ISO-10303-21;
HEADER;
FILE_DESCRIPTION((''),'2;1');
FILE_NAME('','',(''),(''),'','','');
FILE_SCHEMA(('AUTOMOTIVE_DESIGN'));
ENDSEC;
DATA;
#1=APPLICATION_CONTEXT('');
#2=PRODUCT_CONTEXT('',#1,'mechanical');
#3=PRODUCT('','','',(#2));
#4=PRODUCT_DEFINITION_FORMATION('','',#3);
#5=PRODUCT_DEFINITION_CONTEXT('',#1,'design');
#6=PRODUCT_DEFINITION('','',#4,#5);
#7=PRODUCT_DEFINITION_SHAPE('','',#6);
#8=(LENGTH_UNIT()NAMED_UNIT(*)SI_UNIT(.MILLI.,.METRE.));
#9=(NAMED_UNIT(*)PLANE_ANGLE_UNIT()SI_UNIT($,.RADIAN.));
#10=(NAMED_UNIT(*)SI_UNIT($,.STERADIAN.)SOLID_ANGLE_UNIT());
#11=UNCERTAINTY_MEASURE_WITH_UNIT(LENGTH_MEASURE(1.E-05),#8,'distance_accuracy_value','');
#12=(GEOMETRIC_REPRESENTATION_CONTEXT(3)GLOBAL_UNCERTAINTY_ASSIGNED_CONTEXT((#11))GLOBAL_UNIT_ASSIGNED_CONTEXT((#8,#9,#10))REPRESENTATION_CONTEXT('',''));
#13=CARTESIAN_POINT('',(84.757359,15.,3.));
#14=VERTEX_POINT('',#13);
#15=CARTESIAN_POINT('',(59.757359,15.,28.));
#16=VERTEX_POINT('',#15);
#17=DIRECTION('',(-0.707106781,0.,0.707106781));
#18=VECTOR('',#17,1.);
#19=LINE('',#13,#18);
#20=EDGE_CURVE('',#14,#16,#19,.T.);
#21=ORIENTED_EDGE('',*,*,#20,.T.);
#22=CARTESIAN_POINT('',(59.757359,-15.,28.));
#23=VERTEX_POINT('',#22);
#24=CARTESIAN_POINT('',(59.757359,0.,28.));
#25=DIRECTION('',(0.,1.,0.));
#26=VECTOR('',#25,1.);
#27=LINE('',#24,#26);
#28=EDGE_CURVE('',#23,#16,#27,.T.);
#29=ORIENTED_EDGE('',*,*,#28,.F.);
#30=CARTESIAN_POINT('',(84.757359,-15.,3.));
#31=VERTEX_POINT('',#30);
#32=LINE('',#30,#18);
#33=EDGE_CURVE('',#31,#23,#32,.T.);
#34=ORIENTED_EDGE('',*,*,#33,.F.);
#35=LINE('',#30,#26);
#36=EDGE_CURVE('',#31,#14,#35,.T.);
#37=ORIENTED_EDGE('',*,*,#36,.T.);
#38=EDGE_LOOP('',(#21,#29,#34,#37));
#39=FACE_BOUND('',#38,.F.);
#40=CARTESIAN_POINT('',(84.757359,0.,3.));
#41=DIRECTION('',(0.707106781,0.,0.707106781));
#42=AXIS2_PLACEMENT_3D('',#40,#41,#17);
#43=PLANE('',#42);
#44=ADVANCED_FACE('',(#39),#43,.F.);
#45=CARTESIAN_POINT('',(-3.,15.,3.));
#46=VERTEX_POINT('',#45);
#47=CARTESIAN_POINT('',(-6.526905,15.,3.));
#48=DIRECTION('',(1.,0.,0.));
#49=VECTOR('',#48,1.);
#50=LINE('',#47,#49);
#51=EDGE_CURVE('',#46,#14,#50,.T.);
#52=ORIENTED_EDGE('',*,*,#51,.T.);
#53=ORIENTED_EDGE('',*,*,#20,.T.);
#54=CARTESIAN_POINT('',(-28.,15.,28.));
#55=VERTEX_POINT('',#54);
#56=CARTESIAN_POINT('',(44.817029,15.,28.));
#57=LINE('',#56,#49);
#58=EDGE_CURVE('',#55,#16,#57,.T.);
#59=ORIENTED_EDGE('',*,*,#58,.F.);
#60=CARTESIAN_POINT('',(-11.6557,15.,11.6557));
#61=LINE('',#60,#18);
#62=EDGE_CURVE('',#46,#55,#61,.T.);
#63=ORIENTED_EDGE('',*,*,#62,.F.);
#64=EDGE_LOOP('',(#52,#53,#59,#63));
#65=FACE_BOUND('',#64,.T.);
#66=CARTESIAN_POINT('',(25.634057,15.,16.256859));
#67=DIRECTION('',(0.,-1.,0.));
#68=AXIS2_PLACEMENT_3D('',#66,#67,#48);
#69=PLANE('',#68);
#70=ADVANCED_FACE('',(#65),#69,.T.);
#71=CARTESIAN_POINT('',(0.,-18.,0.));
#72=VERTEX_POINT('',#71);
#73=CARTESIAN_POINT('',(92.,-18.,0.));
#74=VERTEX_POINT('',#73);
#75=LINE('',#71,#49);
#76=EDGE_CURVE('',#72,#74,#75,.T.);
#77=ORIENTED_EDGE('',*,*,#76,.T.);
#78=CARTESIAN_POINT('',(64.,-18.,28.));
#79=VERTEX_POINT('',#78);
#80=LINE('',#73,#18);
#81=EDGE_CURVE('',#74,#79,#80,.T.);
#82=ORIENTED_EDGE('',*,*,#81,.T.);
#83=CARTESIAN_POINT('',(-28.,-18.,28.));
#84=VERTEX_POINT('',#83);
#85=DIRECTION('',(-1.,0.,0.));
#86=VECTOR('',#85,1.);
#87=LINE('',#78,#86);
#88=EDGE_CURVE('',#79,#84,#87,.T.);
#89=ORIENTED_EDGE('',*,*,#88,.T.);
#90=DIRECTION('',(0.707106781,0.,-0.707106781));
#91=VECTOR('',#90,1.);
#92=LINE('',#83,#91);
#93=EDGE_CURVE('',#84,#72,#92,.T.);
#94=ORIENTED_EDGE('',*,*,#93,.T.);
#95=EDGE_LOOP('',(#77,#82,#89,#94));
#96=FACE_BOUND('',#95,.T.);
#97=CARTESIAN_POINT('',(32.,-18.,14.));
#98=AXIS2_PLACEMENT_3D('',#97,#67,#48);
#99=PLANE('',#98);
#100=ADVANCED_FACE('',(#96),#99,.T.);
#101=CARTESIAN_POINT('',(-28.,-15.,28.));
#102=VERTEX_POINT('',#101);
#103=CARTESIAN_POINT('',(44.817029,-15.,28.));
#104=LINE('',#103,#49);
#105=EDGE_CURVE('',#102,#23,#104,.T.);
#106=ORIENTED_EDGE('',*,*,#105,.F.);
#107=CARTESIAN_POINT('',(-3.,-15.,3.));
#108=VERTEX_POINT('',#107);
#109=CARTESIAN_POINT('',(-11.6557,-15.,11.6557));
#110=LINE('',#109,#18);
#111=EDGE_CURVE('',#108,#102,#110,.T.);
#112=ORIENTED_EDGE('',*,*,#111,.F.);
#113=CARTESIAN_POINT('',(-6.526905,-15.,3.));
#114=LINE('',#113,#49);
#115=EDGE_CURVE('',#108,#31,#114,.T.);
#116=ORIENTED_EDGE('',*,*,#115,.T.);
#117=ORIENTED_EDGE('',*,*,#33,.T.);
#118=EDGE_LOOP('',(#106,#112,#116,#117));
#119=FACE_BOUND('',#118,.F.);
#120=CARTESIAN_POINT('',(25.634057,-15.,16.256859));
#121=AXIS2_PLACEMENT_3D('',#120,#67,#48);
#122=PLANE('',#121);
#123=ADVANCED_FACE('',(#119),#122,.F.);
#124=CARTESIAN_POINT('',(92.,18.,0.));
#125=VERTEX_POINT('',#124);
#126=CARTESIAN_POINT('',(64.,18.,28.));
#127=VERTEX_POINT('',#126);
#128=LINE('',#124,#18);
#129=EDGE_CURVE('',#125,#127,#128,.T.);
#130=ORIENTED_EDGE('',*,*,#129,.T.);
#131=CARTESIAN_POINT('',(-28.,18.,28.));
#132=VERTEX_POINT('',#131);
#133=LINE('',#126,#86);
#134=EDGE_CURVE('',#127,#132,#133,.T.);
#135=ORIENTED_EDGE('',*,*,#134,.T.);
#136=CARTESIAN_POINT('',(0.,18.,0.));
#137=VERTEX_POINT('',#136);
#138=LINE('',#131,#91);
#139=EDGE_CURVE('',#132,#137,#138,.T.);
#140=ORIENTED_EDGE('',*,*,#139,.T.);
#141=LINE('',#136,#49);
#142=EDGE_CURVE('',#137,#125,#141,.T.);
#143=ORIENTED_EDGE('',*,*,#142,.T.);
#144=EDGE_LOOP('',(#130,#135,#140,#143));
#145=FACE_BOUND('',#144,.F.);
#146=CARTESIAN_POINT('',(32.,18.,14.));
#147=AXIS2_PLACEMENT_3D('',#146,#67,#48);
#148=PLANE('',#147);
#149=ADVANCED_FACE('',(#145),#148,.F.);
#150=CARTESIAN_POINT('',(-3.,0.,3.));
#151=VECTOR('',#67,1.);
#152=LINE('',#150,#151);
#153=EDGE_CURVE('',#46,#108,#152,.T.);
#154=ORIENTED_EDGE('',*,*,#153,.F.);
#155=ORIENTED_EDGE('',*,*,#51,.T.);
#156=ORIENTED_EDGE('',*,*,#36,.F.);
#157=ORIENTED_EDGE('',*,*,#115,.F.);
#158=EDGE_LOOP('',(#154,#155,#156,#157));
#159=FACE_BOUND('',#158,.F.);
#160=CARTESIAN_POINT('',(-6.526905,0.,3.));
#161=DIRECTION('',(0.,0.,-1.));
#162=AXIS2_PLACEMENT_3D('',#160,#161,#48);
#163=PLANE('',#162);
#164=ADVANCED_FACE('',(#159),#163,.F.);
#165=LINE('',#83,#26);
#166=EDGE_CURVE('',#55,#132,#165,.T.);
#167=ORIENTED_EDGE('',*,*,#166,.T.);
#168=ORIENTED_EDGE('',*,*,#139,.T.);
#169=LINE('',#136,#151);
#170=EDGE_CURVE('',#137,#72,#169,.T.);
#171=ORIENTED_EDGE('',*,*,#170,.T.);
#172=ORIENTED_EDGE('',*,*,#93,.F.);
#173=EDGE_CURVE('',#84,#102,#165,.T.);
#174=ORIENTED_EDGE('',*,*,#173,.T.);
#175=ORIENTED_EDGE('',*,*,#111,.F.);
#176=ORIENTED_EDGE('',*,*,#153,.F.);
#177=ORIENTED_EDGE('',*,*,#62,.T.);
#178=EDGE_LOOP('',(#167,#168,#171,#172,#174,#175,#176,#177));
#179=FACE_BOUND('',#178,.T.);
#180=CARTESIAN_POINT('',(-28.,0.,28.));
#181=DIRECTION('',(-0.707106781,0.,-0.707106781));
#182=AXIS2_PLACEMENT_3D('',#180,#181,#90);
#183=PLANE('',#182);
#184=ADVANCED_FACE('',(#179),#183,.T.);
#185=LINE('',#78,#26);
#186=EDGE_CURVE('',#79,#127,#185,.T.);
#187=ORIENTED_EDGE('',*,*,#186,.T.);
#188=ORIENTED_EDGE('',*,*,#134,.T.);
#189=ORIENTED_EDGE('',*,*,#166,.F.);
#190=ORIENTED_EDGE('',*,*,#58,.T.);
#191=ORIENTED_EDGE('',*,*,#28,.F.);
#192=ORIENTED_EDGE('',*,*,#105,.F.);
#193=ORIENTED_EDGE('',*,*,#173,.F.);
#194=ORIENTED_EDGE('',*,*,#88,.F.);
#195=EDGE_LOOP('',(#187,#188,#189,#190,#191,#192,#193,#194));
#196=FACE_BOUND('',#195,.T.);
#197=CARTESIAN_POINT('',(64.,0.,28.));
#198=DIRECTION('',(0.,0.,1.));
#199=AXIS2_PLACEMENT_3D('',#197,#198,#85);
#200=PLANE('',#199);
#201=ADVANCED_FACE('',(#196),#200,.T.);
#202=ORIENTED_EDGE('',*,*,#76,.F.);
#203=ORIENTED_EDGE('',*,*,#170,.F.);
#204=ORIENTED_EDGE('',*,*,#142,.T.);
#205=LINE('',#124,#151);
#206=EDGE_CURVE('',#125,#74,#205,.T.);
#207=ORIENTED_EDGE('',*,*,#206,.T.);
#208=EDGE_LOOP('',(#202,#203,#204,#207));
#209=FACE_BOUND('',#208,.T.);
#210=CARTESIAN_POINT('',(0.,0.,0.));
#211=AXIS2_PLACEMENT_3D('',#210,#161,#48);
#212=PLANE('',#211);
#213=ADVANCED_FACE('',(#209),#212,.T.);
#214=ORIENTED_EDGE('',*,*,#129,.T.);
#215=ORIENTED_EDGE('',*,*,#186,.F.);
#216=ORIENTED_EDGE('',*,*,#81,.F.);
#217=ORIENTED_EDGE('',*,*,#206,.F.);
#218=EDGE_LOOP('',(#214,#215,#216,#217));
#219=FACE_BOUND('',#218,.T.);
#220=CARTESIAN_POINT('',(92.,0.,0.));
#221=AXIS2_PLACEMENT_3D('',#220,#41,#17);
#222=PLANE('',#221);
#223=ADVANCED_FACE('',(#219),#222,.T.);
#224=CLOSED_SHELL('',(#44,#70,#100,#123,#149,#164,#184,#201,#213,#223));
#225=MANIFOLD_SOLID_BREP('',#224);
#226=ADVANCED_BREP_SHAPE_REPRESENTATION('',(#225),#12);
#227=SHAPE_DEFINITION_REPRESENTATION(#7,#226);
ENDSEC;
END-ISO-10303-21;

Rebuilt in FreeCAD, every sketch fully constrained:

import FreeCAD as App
import Part
import Sketcher
from FreeCAD import Vector
Q = App.Units.Quantity


def add_polygon(sketch, points):
    """Adds a closed chain of lines whose ends are joined by coincident constraints."""
    first, n = sketch.GeometryCount, len(points)
    for a, b in zip(points, points[1:] + points[:1]):
        sketch.addGeometry(Part.LineSegment(App.Vector(*a, 0), App.Vector(*b, 0)), False)
    for i in range(n):
        sketch.addConstraint(Sketcher.Constraint("Coincident", first + i, 2, first + (i + 1) % n, 1))

doc = App.newDocument("Part")
body = doc.addObject("PartDesign::Body", "Body")

# Sketch on XZ plane
sketch1 = doc.addObject("Sketcher::SketchObject", "Sketch")
body.addObject(sketch1)
sketch1.AttachmentSupport = (doc.XZ_Plane, [""])
sketch1.MapMode = "FlatFace"
add_polygon(sketch1, [(-28, 28), (0, 0), (92, 0), (64, 28)])  # lines 0-3
sketch1.addConstraint(Sketcher.Constraint("Horizontal", 1))
sketch1.addConstraint(Sketcher.Constraint("Horizontal", 3))
sketch1.addConstraint(Sketcher.Constraint("Coincident", 0, 2, -1, 1))
sketch1.addConstraint(Sketcher.Constraint("Parallel", 0, 2))
sketch1.addConstraint(Sketcher.Constraint("DistanceX", 1, 1, 1, 2, Q("92 mm")))
sketch1.addConstraint(Sketcher.Constraint("Angle", 0, Q("-45 deg")))
sketch1.addConstraint(Sketcher.Constraint("DistanceX", -1, 1, 2, 2, Q("64 mm")))
pad1 = doc.addObject("PartDesign::Pad", "Pad")
body.addObject(pad1)
pad1.Profile = sketch1
pad1.Length = 36
pad1.Midplane = True

# Sketch on XZ plane
sketch2 = doc.addObject("Sketcher::SketchObject", "Sketch001")
body.addObject(sketch2)
sketch2.AttachmentSupport = (doc.XZ_Plane, [""])
sketch2.MapMode = "FlatFace"
add_polygon(sketch2, [(85, 3), (58, 29), (-34, 29), (-7, 3)])  # lines 0-3
sketch2.addConstraint(Sketcher.Constraint("Horizontal", 3))
sketch2.addConstraint(Sketcher.Constraint("Angle", 0, Q("135 deg")))
sketch2.addConstraint(Sketcher.Constraint("DistanceY", -1, 1, 2, 2, Q("3 mm")))
sketch2.addConstraint(Sketcher.Constraint("DistanceX", 3, 1, 3, 2, Q("91.284264 mm")))
sketch2.addConstraint(Sketcher.Constraint("DistanceY", -1, 1, 0, 2, Q("29.412471 mm")))
sketch2.addConstraint(Sketcher.Constraint("DistanceY", -1, 1, 1, 2, Q("29.487692 mm")))
sketch2.addConstraint(Sketcher.Constraint("DistanceX", -1, 1, 3, 2, Q("84.757359 mm")))
sketch2.addConstraint(Sketcher.Constraint("DistanceX", 1, 2, 2, 2, Q("27.03339 mm")))
pocket1 = doc.addObject("PartDesign::Pocket", "Pocket")
body.addObject(pocket1)
pocket1.Profile = sketch2
pocket1.Length = 30
pocket1.Midplane = True

doc.recompute()
